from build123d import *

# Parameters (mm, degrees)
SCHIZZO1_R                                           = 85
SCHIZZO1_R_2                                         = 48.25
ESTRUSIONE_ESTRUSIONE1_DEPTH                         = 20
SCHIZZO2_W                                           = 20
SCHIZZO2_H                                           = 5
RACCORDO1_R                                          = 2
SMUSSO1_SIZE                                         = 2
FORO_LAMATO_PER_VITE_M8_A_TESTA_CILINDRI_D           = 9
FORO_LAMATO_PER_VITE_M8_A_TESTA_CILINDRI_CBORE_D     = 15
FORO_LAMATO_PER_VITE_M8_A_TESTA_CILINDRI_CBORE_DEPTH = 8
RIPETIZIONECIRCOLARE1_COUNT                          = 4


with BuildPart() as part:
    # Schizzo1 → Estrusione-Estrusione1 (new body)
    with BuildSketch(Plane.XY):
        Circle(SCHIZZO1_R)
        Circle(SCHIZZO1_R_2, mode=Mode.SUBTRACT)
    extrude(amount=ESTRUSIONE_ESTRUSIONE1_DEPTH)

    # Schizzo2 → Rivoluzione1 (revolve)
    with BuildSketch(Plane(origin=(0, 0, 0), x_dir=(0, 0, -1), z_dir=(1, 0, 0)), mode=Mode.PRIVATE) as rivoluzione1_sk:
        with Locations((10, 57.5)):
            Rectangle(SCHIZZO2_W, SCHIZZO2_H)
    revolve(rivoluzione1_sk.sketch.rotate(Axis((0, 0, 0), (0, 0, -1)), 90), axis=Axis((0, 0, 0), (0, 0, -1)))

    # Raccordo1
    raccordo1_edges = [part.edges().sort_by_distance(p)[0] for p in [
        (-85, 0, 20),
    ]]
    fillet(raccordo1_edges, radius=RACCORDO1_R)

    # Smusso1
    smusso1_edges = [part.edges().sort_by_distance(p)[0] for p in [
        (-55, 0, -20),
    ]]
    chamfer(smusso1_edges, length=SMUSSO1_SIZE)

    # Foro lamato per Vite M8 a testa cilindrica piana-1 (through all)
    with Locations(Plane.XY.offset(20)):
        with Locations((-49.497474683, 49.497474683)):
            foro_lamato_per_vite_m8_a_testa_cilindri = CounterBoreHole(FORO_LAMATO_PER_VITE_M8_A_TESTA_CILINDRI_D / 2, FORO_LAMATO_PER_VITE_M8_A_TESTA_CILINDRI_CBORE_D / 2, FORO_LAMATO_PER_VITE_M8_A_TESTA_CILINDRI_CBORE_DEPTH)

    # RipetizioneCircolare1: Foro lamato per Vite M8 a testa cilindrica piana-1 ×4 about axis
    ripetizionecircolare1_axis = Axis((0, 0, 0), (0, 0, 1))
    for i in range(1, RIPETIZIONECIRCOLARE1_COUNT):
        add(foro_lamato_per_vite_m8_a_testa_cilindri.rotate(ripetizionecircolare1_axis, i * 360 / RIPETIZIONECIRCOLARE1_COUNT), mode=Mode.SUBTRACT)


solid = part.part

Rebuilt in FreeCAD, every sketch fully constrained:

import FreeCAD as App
import Part
import Sketcher

V = App.Vector


def edges_at(feature, points):
    """Names of the edges that pass closest to the given points."""
    edges = feature.Shape.Edges
    near = lambda p: min(range(len(edges)), key=lambda i: edges[i].distToShape(Part.Vertex(*p))[0])
    return sorted({f"Edge{near(p) + 1}" for p in points})

doc = App.newDocument("Part")
params = doc.addObject("Spreadsheet::Sheet", "Params")
for row, (alias, value) in enumerate([
    ("sketch1_diameter", "170 mm"),
    ("sketch1_diameter2", "96.5 mm"),
    ("pad1_length", "20 mm"),
    ("sketch2_width", "5 mm"),
    ("sketch2_height", "20 mm"),
    ("revolution_angle", "360 deg"),
    ("fillet_radius", "2 mm"),
    ("chamfer_size", "2 mm"),
    ("sketch3_diameter", "9 mm"),
    ("hole_diameter", "9 mm"),
    ("hole_cbore_diameter", "15 mm"),
    ("hole_cbore_depth", "8 mm"),
], start=1):
    params.set(f"A{row}", alias)
    params.set(f"B{row}", "=" + value)
    params.setAlias(f"B{row}", alias)

body = doc.addObject("PartDesign::Body", "Body")

sketch1 = doc.addObject("Sketcher::SketchObject", "Sketch")
body.addObject(sketch1)
sketch1.AttachmentSupport = (doc.XY_Plane, [""])
sketch1.MapMode = "FlatFace"
sketch1.addGeometry([
    Part.Circle(V(0, 0, 0), V(0, 0, 1), 85),
    Part.Circle(V(0, 0, 0), V(0, 0, 1), 48),
], False)
sketch1.addConstraint([
    Sketcher.Constraint("Coincident", 0, 3, -1, 1),
    Sketcher.Constraint("Coincident", 1, 3, -1, 1),
    Sketcher.Constraint("Diameter", 0, 170.0),
    Sketcher.Constraint("Diameter", 1, 96.5),
])
sketch1.setExpression("Constraints[2]", "Params.sketch1_diameter")
sketch1.setExpression("Constraints[3]", "Params.sketch1_diameter2")
pad1 = doc.addObject("PartDesign::Pad", "Pad")
body.addObject(pad1)
pad1.Profile = sketch1
pad1.setExpression("Length", "Params.pad1_length")

sketch2 = doc.addObject("Sketcher::SketchObject", "Sketch001")
body.addObject(sketch2)
sketch2.AttachmentSupport = (doc.YZ_Plane, [""])
sketch2.MapMode = "FlatFace"
sketch2.addGeometry([
    Part.LineSegment(V(60, 0, 0), V(55, 0, 0)),
    Part.LineSegment(V(55, 0, 0), V(55, -20, 0)),
    Part.LineSegment(V(55, -20, 0), V(60, -20, 0)),
    Part.LineSegment(V(60, -20, 0), V(60, 0, 0)),
], False)
sketch2.addConstraint([
    Sketcher.Constraint("Coincident", 0, 2, 1, 1),
    Sketcher.Constraint("Coincident", 1, 2, 2, 1),
    Sketcher.Constraint("Coincident", 2, 2, 3, 1),
    Sketcher.Constraint("Coincident", 3, 2, 0, 1),
    Sketcher.Constraint("Horizontal", 0),
    Sketcher.Constraint("Vertical", 1),
    Sketcher.Constraint("Horizontal", 2),
    Sketcher.Constraint("Vertical", 3),
    Sketcher.Constraint("PointOnObject", 0, 2, -1),
    Sketcher.Constraint("DistanceX", 0, 2, 0, 1, 5.0),
    Sketcher.Constraint("DistanceY", 1, 2, 1, 1, 20.0),
    Sketcher.Constraint("DistanceX", -1, 1, 0, 2, 55.0),
])
sketch2.setExpression("Constraints[9]", "Params.sketch2_width")
sketch2.setExpression("Constraints[10]", "Params.sketch2_height")
revolution = doc.addObject("PartDesign::Revolution", "Revolution")
body.addObject(revolution)
revolution.Profile = sketch2
revolution.ReferenceAxis = (sketch2, ["V_Axis"])
revolution.setExpression("Angle", "Params.revolution_angle")
doc.recompute()

fillet = doc.addObject("PartDesign::Fillet", "Fillet")
body.addObject(fillet)
fillet.Base = (revolution, edges_at(revolution, [(-85, 0, 20)]))
fillet.setExpression("Radius", "Params.fillet_radius")
doc.recompute()

chamfer = doc.addObject("PartDesign::Chamfer", "Chamfer")
body.addObject(chamfer)
chamfer.Base = (fillet, edges_at(fillet, [(-55, 0, -20)]))
chamfer.setExpression("Size", "Params.chamfer_size")

sketch3 = doc.addObject("Sketcher::SketchObject", "Sketch002")
body.addObject(sketch3)
sketch3.AttachmentSupport = (doc.XY_Plane, [""])
sketch3.MapMode = "FlatFace"
sketch3.AttachmentOffset = App.Placement(V(0, 0, 20), App.Rotation())
sketch3.addGeometry(Part.Circle(V(-49.5, 49.5, 0), V(0, 0, 1), 4.5), False)
sketch3.addConstraint([
    Sketcher.Constraint("Diameter", 0, 9.0),
    Sketcher.Constraint("DistanceX", 0, 3, -1, 1, 49.497475),
    Sketcher.Constraint("DistanceY", -1, 1, 0, 3, 49.497475),
])
sketch3.setExpression("Constraints[0]", "Params.sketch3_diameter")
doc.recompute()
hole = doc.addObject("PartDesign::Hole", "Hole")
body.addObject(hole)
hole.Profile = sketch3
hole.ThreadType = "None"
hole.setExpression("Diameter", "Params.hole_diameter")
hole.DepthType = "ThroughAll"
hole.HoleCutType = "Counterbore"
hole.setExpression("HoleCutDiameter", "Params.hole_cbore_diameter")
hole.setExpression("HoleCutDepth", "Params.hole_cbore_depth")
doc.recompute()

polarpattern = doc.addObject("PartDesign::PolarPattern", "PolarPattern")
body.addObject(polarpattern)
polarpattern.Originals = [hole]
polarpattern.Axis = (doc.Z_Axis, [""])
polarpattern.Angle = 360
polarpattern.Occurrences = 4
body.Tip = polarpattern

doc.recompute()
